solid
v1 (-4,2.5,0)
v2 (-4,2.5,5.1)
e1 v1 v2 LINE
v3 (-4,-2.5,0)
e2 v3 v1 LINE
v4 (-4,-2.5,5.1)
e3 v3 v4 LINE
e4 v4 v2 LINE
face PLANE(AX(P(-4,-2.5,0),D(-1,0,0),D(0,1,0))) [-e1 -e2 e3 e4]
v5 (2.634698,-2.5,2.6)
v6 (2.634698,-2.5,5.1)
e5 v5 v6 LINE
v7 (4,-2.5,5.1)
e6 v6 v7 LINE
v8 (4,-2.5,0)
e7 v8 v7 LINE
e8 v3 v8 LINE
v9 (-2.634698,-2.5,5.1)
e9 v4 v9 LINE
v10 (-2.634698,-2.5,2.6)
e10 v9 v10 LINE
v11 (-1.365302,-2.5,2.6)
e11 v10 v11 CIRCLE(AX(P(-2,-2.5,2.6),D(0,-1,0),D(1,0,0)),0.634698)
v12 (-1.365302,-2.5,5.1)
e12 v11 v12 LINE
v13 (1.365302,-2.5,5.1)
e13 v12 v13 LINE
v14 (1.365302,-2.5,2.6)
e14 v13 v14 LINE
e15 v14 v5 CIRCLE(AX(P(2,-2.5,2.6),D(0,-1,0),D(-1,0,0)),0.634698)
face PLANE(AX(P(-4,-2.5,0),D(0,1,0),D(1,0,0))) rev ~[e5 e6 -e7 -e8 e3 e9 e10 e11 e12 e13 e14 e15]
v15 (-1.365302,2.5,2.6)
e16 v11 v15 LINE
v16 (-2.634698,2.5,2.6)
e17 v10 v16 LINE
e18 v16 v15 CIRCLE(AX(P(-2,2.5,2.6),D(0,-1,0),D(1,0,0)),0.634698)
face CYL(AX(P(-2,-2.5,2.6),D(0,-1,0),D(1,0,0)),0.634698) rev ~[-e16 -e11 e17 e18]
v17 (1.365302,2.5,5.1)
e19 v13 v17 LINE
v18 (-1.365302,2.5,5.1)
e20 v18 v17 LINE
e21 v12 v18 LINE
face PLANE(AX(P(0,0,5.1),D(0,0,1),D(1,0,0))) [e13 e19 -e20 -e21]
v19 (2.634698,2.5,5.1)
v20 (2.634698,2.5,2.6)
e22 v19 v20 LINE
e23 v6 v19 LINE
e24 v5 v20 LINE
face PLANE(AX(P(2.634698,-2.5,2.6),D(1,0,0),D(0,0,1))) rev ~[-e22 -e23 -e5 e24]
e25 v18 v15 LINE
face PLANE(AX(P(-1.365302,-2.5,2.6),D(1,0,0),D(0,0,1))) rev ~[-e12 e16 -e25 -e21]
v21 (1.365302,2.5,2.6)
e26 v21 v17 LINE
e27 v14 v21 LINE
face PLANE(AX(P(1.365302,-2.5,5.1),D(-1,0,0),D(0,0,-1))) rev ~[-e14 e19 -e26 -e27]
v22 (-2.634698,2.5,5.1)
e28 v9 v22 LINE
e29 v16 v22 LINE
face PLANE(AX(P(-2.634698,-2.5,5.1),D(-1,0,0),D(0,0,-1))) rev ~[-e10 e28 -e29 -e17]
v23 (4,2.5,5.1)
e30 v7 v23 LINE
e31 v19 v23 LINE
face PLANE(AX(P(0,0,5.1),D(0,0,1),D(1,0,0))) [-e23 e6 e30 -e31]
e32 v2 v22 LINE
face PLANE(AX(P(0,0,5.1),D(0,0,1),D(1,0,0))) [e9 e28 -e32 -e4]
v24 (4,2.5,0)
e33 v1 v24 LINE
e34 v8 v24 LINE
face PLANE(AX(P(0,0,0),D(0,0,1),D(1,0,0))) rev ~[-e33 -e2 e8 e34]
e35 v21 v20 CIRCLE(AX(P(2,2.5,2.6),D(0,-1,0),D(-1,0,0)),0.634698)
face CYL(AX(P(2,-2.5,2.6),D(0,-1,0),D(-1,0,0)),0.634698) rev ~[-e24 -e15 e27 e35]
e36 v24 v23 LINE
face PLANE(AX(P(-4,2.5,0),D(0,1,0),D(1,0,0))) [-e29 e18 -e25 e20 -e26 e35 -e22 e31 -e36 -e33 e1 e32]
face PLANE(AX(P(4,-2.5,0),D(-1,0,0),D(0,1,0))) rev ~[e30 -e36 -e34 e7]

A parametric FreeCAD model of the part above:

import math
import FreeCAD as App
import Part
import Sketcher

V = App.Vector

doc = App.newDocument("Part")
body = doc.addObject("PartDesign::Body", "Body")

sketch1 = body.newObject("Sketcher::SketchObject", "Sketch")
sketch1.AttachmentSupport = (doc.getObject("XY_Plane"), [""])
sketch1.MapMode = "FlatFace"
sketch1.addGeometry([
    Part.LineSegment(V(-4, 2.5, 0), V(-4, -2.5, 0)),
    Part.LineSegment(V(-4, -2.5, 0), V(4, -2.5, 0)),
    Part.LineSegment(V(4, -2.5, 0), V(4, 2.5, 0)),
    Part.LineSegment(V(4, 2.5, 0), V(-4, 2.5, 0)),
], False)
sketch1.addConstraint([
    Sketcher.Constraint("Coincident", 0, 2, 1, 1),
    Sketcher.Constraint("Coincident", 1, 2, 2, 1),
    Sketcher.Constraint("Coincident", 2, 2, 3, 1),
    Sketcher.Constraint("Coincident", 3, 2, 0, 1),
    Sketcher.Constraint("Vertical", 0),
    Sketcher.Constraint("Horizontal", 1),
    Sketcher.Constraint("Vertical", 2),
    Sketcher.Constraint("Horizontal", 3),
    Sketcher.Constraint("Symmetric", 0, 2, 2, 2, -1, 1),
    Sketcher.Constraint("DistanceX", 1, 1, 1, 2, 8.0),
    Sketcher.Constraint("DistanceY", 0, 2, 0, 1, 5.0),
])
pad1 = body.newObject("PartDesign::Pad", "Pad")
pad1.Profile = sketch1
pad1.Length = 5.1

sketch2 = body.newObject("Sketcher::SketchObject", "Sketch001")
sketch2.AttachmentSupport = (doc.getObject("XZ_Plane"), [""])
sketch2.MapMode = "FlatFace"
sketch2.AttachmentOffset = App.Placement(V(0, 0, 2.5), App.Rotation())
sketch2.addGeometry([
    Part.LineSegment(V(1.365302, 5.1, 0), V(1.365302, 2.6, 0)),
    Part.ArcOfCircle(Part.Circle(V(2, 2.6, 0), V(0, 0, 1), 0.634698), math.radians(180), math.radians(360)),
    Part.LineSegment(V(2.634698, 2.6, 0), V(2.634698, 5.1, 0)),
    Part.LineSegment(V(2.634698, 5.1, 0), V(1.365302, 5.1, 0)),
    Part.LineSegment(V(-1.365302, 2.6, 0), V(-1.365302, 5.1, 0)),
    Part.LineSegment(V(-1.365302, 5.1, 0), V(-2.634698, 5.1, 0)),
    Part.LineSegment(V(-2.634698, 5.1, 0), V(-2.634698, 2.6, 0)),
    Part.ArcOfCircle(Part.Circle(V(-2, 2.6, 0), V(0, 0, 1), 0.634698), math.radians(180), math.radians(360)),
], False)
sketch2.addConstraint([
    Sketcher.Constraint("Tangent", 0, 2, 1, 1),
    Sketcher.Constraint("Tangent", 1, 2, 2, 1),
    Sketcher.Constraint("Coincident", 2, 2, 3, 1),
    Sketcher.Constraint("Coincident", 3, 2, 0, 1),
    Sketcher.Constraint("Coincident", 4, 2, 5, 1),
    Sketcher.Constraint("Coincident", 5, 2, 6, 1),
    Sketcher.Constraint("Tangent", 6, 2, 7, 1),
    Sketcher.Constraint("Tangent", 7, 2, 4, 1),
    Sketcher.Constraint("Vertical", 0),
    Sketcher.Constraint("Vertical", 2),
    Sketcher.Constraint("Horizontal", 3),
    Sketcher.Constraint("Vertical", 4),
    Sketcher.Constraint("Horizontal", 5),
    Sketcher.Constraint("Vertical", 6),
    Sketcher.Constraint("Equal", 1, 7),
    Sketcher.Constraint("Symmetric", 1, 3, 7, 3, -2),
    Sketcher.Constraint("Horizontal", 3, 2, 4, 2),
    Sketcher.Constraint("DistanceY", 0, 2, 0, 1, 2.5),
    Sketcher.Constraint("DistanceX", -1, 1, 1, 3, 2.0),
    Sketcher.Constraint("DistanceY", -1, 1, 1, 3, 2.6),
    Sketcher.Constraint("Radius", 1, 0.634698),
])
pocket1 = body.newObject("PartDesign::Pocket", "Pocket")
pocket1.Profile = sketch2
pocket1.Length = 25

doc.recompute()
